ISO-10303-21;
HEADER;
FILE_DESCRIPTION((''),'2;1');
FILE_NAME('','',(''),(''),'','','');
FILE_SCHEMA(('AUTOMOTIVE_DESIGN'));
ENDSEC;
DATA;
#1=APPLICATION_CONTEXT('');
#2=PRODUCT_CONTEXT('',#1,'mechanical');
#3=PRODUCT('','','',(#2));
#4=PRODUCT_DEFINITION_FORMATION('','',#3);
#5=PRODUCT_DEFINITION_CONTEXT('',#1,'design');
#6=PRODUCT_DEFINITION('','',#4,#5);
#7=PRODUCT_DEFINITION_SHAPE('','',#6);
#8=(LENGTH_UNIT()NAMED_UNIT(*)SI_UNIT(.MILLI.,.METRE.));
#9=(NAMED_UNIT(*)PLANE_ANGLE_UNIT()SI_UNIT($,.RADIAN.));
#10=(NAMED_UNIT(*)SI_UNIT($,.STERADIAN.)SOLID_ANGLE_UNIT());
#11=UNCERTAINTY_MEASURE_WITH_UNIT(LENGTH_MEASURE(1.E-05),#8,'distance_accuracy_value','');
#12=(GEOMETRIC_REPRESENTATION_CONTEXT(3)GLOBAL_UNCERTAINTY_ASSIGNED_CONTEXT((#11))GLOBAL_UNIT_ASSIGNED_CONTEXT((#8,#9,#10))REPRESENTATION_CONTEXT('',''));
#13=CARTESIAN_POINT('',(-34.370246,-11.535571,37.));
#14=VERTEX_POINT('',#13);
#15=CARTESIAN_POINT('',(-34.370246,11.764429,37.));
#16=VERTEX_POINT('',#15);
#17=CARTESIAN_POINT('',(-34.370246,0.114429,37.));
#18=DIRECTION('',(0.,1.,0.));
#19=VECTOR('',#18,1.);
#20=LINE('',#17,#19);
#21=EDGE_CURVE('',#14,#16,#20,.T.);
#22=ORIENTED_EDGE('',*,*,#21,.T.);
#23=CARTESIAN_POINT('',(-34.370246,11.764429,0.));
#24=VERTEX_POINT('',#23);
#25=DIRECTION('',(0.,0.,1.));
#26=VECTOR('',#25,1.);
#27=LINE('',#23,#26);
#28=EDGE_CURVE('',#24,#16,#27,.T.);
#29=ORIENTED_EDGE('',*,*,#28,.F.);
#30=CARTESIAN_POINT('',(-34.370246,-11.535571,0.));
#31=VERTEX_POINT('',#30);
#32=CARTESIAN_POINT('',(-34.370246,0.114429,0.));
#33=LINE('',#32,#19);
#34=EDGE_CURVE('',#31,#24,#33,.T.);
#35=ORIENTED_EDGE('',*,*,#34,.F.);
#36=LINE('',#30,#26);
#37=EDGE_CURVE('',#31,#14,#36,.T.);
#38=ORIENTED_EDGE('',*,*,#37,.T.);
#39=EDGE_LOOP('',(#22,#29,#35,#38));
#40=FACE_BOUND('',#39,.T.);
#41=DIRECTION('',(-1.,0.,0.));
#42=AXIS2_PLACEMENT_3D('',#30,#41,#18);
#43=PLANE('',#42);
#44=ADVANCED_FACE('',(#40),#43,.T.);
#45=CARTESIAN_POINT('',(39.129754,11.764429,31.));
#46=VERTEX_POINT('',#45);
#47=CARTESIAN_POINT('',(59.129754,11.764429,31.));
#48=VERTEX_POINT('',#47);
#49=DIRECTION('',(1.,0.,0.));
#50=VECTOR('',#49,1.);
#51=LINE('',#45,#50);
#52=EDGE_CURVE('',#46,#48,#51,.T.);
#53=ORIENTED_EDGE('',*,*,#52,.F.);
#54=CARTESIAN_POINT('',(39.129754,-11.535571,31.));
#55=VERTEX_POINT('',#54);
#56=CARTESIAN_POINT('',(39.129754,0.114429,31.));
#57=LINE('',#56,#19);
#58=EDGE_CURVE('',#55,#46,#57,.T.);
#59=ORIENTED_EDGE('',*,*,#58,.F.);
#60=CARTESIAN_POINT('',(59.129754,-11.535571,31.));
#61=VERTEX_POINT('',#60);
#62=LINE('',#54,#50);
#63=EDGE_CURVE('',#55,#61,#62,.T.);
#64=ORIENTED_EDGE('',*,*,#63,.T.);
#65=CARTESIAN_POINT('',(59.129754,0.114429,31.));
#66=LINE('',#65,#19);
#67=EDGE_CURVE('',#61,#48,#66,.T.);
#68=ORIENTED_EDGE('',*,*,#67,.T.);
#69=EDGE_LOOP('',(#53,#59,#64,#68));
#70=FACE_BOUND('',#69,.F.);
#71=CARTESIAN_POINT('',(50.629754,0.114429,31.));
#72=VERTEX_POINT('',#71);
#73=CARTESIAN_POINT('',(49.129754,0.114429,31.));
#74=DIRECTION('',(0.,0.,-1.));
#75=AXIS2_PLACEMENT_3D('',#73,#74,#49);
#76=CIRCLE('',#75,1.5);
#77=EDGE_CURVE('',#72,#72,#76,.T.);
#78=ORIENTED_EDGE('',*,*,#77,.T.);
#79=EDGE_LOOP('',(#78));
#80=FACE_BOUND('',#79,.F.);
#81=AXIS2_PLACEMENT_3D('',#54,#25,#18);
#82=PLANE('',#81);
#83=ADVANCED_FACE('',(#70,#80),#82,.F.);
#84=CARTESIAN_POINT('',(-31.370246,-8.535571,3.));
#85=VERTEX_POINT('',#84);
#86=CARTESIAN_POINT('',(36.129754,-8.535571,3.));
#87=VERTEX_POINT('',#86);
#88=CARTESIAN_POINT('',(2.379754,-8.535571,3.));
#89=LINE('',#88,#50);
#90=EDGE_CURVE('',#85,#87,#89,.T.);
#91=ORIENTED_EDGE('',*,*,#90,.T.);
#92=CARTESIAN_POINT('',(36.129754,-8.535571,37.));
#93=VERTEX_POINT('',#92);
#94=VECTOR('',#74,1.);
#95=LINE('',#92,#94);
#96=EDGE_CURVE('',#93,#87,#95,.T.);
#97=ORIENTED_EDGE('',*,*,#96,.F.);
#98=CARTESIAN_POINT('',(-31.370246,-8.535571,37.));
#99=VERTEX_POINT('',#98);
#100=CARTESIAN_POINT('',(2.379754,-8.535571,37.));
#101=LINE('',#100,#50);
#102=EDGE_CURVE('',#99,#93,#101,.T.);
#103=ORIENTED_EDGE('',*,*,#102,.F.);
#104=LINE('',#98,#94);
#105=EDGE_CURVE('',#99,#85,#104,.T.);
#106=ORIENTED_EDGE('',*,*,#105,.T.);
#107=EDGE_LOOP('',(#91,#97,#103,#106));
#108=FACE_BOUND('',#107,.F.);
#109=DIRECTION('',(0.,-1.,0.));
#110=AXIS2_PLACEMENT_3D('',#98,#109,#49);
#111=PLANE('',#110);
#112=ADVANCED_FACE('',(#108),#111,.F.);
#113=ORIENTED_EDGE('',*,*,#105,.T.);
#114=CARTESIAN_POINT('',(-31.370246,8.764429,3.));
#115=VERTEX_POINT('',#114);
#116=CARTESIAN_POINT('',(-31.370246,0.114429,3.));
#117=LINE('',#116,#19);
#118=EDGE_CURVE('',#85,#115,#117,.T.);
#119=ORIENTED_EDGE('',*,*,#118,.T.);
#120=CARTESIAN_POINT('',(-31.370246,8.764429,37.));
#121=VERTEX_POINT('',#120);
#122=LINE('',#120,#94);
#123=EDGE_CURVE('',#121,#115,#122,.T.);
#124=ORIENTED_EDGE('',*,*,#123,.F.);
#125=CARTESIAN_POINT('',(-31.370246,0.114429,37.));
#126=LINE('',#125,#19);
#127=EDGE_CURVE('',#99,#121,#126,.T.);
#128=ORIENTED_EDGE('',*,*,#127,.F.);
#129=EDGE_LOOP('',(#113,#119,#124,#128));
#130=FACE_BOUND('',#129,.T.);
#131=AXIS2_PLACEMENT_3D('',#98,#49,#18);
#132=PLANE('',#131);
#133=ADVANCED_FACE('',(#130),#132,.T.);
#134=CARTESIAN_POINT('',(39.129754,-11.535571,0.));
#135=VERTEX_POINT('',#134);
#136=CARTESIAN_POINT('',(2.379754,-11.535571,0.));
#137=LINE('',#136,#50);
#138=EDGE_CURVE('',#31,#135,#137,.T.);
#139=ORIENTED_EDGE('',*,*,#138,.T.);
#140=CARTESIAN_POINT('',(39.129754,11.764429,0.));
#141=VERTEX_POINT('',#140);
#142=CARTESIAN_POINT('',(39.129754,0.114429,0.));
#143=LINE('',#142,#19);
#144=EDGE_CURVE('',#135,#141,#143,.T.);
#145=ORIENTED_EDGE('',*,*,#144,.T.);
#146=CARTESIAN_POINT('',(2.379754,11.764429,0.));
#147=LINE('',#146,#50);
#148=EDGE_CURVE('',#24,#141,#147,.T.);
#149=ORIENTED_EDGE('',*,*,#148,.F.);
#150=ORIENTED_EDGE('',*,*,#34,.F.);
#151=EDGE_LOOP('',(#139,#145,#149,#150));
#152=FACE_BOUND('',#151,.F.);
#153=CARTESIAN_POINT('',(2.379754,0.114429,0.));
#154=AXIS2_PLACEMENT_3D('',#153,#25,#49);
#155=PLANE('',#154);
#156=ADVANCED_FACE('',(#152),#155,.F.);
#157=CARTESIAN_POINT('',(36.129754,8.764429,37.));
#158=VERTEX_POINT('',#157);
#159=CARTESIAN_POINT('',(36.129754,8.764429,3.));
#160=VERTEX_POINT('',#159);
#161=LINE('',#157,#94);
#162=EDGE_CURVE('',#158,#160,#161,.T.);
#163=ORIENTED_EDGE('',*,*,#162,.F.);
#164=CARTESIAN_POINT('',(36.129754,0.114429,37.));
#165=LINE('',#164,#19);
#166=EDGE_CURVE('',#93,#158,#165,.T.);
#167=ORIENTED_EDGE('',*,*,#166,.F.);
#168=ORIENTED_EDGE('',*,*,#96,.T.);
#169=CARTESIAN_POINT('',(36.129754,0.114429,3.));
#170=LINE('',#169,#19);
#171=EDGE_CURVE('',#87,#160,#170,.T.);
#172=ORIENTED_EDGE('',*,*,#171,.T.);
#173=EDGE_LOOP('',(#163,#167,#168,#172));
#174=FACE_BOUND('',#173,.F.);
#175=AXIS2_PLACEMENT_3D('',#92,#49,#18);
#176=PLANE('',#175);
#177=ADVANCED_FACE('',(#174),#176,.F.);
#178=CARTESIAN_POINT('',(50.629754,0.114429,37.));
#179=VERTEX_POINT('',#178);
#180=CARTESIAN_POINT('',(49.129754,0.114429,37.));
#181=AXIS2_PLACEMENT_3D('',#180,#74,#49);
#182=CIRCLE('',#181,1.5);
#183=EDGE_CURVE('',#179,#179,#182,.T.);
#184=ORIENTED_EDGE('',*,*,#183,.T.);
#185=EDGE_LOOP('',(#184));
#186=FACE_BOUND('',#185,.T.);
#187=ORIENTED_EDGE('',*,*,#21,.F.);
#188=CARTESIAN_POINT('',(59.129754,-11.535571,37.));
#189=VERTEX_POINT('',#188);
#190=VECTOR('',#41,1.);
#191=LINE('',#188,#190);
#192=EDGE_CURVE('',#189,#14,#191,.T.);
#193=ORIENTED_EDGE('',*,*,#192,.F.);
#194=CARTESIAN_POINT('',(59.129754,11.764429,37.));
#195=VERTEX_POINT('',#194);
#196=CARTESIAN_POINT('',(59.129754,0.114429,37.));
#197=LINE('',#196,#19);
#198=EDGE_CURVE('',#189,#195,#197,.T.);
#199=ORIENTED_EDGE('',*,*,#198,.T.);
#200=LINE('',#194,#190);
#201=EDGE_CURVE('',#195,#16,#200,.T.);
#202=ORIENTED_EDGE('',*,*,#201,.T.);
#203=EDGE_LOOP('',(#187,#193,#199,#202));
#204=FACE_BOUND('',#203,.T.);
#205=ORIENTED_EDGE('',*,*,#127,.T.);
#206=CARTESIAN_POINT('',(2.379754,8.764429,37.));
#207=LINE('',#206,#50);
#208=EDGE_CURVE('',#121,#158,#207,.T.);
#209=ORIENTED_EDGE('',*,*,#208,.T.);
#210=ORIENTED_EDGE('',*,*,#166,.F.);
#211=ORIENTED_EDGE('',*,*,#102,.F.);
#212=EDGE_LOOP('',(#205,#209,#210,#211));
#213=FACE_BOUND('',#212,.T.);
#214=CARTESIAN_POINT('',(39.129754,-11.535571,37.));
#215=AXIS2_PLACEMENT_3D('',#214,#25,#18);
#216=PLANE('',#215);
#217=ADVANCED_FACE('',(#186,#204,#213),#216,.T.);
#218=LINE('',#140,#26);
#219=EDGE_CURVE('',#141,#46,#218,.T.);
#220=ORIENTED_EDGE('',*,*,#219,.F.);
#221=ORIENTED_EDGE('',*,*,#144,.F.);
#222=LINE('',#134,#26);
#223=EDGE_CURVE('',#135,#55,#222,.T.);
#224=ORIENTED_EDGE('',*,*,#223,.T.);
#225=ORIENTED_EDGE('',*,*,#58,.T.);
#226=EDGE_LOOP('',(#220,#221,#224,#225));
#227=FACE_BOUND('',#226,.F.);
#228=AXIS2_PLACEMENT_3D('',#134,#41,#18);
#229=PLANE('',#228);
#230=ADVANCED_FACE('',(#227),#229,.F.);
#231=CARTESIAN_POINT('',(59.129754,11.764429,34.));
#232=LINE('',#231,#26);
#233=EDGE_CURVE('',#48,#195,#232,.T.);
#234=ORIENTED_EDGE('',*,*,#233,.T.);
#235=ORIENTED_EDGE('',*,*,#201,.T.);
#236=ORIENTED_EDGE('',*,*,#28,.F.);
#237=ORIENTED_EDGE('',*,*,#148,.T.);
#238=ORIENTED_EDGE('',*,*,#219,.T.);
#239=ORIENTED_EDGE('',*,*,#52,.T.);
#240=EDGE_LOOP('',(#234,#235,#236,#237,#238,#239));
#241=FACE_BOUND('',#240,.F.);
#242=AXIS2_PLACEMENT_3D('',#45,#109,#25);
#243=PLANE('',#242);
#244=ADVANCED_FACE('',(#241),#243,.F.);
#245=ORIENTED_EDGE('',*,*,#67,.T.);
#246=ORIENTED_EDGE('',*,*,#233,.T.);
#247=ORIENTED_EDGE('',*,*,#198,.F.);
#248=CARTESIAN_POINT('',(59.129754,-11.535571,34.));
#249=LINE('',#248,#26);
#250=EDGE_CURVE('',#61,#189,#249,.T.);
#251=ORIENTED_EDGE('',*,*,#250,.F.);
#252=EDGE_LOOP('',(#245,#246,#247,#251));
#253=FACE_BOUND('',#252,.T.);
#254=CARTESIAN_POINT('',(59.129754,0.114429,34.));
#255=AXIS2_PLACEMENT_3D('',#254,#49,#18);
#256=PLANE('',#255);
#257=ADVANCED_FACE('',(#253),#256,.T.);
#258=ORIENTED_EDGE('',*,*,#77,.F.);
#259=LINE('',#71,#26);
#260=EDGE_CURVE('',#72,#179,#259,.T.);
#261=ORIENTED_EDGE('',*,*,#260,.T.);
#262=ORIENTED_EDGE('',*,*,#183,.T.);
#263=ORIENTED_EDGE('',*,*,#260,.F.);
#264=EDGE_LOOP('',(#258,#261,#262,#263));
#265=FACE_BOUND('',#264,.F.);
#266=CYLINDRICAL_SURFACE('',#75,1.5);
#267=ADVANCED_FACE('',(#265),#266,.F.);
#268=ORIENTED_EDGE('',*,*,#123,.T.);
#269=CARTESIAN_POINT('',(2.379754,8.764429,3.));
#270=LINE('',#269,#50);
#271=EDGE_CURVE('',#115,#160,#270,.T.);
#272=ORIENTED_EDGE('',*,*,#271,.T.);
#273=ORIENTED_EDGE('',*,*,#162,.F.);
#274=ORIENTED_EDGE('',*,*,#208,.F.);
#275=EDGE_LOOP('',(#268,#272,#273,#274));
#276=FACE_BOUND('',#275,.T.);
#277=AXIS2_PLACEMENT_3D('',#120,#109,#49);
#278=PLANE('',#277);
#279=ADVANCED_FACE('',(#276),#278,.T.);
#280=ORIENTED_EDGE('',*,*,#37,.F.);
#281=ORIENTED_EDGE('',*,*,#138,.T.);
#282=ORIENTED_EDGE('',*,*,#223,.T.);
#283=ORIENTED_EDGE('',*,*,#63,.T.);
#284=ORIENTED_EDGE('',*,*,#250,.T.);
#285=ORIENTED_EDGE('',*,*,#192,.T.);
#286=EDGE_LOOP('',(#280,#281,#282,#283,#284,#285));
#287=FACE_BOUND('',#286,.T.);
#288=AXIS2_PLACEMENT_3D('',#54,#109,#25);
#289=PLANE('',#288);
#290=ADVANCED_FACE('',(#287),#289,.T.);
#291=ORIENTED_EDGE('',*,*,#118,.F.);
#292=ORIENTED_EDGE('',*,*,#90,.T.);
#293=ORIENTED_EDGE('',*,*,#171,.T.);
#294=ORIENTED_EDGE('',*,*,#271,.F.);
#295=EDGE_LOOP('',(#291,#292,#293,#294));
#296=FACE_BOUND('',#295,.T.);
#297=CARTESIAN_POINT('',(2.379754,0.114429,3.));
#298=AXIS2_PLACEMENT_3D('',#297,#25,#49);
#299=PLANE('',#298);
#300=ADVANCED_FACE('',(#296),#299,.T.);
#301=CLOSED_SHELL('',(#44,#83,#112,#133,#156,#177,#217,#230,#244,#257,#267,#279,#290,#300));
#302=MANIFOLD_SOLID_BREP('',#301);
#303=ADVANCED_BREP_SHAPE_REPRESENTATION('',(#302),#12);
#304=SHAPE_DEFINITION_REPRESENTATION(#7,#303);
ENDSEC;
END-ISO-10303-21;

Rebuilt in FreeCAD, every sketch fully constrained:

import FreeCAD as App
import Part
import Sketcher

V = App.Vector


def add_polygon(sketch, points):
    """Adds a closed chain of lines whose ends are joined by coincident constraints."""
    first, n = sketch.GeometryCount, len(points)
    for a, b in zip(points, points[1:] + points[:1]):
        sketch.addGeometry(Part.LineSegment(App.Vector(*a, 0), App.Vector(*b, 0)), False)
    for i in range(n):
        sketch.addConstraint(Sketcher.Constraint("Coincident", first + i, 2, first + (i + 1) % n, 1))

doc = App.newDocument("Part")
body = doc.addObject("PartDesign::Body", "Body")

# Sketch on XY plane
sketch1 = body.newObject("Sketcher::SketchObject", "Sketch")
sketch1.AttachmentSupport = (doc.getObject("XY_Plane"), [""])
sketch1.MapMode = "FlatFace"
add_polygon(sketch1, [(-34, 12), (-34, -12), (39, -12), (39, 12)])  # lines 0-3
sketch1.addConstraint([
    Sketcher.Constraint("Vertical", 0),
    Sketcher.Constraint("Horizontal", 1),
    Sketcher.Constraint("Vertical", 2),
    Sketcher.Constraint("Horizontal", 3),
    Sketcher.Constraint("DistanceX", 1, 1, 1, 2, 73.5),
    Sketcher.Constraint("DistanceY", 0, 2, 0, 1, 23.3),
    Sketcher.Constraint("DistanceY", 0, 2, -1, 1, 11.535571),
    Sketcher.Constraint("DistanceX", 0, 2, -1, 1, 34.370246),
])
pad1 = body.newObject("PartDesign::Pad", "Pad")
pad1.Profile = sketch1
pad1.Length = 37

# Sketch on XY plane
sketch2 = body.newObject("Sketcher::SketchObject", "Sketch001")
sketch2.AttachmentSupport = (doc.getObject("XY_Plane"), [""])
sketch2.MapMode = "FlatFace"
sketch2.AttachmentOffset = App.Placement(V(0, 0, 37), App.Rotation())
add_polygon(sketch2, [(-31, 9), (-31, -9), (36, -9), (36, 9)])  # lines 0-3
sketch2.addConstraint([
    Sketcher.Constraint("Vertical", 0),
    Sketcher.Constraint("Horizontal", 1),
    Sketcher.Constraint("Vertical", 2),
    Sketcher.Constraint("Horizontal", 3),
    Sketcher.Constraint("DistanceX", 1, 1, 1, 2, 67.5),
    Sketcher.Constraint("DistanceY", 0, 2, 0, 1, 17.3),
    Sketcher.Constraint("DistanceY", 0, 2, -1, 1, 8.535571),
    Sketcher.Constraint("DistanceX", 0, 2, -1, 1, 31.370246),
])
pocket1 = body.newObject("PartDesign::Pocket", "Pocket")
pocket1.Profile = sketch2
pocket1.Length = 34

# Sketch on YZ plane
sketch3 = body.newObject("Sketcher::SketchObject", "Sketch002")
sketch3.AttachmentSupport = (doc.getObject("YZ_Plane"), [""])
sketch3.MapMode = "FlatFace"
sketch3.AttachmentOffset = App.Placement(V(0, 0, 39.129754), App.Rotation())
add_polygon(sketch3, [(-12, 37), (-12, 31), (12, 31), (12, 37)])  # lines 0-3
sketch3.addConstraint([
    Sketcher.Constraint("Vertical", 0),
    Sketcher.Constraint("Horizontal", 1),
    Sketcher.Constraint("Vertical", 2),
    Sketcher.Constraint("Horizontal", 3),
    Sketcher.Constraint("DistanceY", 0, 2, 0, 1, 6.0),
    Sketcher.Constraint("DistanceX", 1, 1, 1, 2, 23.3),
    Sketcher.Constraint("DistanceY", -1, 1, 0, 2, 31.0),
    Sketcher.Constraint("DistanceX", 0, 2, -1, 1, 11.535571),
])
pad2 = body.newObject("PartDesign::Pad", "Pad001")
pad2.Profile = sketch3
pad2.Length = 20

# Sketch on XY plane
sketch4 = body.newObject("Sketcher::SketchObject", "Sketch003")
sketch4.AttachmentSupport = (doc.getObject("XY_Plane"), [""])
sketch4.MapMode = "FlatFace"
sketch4.AttachmentOffset = App.Placement(V(0, 0, 31), App.Rotation())
sketch4.addGeometry(Part.Circle(V(49.1, 0.1, 0), V(0, 0, 1), 1.5), False)
sketch4.addConstraint([
    Sketcher.Constraint("Diameter", 0, 3.0),
    Sketcher.Constraint("DistanceY", -1, 1, 0, 3, 0.114429),
    Sketcher.Constraint("DistanceX", -1, 1, 0, 3, 49.129754),
])
pocket2 = body.newObject("PartDesign::Pocket", "Pocket001")
pocket2.Profile = sketch4
pocket2.Length = 30
pocket2.Reversed = True

doc.recompute()
